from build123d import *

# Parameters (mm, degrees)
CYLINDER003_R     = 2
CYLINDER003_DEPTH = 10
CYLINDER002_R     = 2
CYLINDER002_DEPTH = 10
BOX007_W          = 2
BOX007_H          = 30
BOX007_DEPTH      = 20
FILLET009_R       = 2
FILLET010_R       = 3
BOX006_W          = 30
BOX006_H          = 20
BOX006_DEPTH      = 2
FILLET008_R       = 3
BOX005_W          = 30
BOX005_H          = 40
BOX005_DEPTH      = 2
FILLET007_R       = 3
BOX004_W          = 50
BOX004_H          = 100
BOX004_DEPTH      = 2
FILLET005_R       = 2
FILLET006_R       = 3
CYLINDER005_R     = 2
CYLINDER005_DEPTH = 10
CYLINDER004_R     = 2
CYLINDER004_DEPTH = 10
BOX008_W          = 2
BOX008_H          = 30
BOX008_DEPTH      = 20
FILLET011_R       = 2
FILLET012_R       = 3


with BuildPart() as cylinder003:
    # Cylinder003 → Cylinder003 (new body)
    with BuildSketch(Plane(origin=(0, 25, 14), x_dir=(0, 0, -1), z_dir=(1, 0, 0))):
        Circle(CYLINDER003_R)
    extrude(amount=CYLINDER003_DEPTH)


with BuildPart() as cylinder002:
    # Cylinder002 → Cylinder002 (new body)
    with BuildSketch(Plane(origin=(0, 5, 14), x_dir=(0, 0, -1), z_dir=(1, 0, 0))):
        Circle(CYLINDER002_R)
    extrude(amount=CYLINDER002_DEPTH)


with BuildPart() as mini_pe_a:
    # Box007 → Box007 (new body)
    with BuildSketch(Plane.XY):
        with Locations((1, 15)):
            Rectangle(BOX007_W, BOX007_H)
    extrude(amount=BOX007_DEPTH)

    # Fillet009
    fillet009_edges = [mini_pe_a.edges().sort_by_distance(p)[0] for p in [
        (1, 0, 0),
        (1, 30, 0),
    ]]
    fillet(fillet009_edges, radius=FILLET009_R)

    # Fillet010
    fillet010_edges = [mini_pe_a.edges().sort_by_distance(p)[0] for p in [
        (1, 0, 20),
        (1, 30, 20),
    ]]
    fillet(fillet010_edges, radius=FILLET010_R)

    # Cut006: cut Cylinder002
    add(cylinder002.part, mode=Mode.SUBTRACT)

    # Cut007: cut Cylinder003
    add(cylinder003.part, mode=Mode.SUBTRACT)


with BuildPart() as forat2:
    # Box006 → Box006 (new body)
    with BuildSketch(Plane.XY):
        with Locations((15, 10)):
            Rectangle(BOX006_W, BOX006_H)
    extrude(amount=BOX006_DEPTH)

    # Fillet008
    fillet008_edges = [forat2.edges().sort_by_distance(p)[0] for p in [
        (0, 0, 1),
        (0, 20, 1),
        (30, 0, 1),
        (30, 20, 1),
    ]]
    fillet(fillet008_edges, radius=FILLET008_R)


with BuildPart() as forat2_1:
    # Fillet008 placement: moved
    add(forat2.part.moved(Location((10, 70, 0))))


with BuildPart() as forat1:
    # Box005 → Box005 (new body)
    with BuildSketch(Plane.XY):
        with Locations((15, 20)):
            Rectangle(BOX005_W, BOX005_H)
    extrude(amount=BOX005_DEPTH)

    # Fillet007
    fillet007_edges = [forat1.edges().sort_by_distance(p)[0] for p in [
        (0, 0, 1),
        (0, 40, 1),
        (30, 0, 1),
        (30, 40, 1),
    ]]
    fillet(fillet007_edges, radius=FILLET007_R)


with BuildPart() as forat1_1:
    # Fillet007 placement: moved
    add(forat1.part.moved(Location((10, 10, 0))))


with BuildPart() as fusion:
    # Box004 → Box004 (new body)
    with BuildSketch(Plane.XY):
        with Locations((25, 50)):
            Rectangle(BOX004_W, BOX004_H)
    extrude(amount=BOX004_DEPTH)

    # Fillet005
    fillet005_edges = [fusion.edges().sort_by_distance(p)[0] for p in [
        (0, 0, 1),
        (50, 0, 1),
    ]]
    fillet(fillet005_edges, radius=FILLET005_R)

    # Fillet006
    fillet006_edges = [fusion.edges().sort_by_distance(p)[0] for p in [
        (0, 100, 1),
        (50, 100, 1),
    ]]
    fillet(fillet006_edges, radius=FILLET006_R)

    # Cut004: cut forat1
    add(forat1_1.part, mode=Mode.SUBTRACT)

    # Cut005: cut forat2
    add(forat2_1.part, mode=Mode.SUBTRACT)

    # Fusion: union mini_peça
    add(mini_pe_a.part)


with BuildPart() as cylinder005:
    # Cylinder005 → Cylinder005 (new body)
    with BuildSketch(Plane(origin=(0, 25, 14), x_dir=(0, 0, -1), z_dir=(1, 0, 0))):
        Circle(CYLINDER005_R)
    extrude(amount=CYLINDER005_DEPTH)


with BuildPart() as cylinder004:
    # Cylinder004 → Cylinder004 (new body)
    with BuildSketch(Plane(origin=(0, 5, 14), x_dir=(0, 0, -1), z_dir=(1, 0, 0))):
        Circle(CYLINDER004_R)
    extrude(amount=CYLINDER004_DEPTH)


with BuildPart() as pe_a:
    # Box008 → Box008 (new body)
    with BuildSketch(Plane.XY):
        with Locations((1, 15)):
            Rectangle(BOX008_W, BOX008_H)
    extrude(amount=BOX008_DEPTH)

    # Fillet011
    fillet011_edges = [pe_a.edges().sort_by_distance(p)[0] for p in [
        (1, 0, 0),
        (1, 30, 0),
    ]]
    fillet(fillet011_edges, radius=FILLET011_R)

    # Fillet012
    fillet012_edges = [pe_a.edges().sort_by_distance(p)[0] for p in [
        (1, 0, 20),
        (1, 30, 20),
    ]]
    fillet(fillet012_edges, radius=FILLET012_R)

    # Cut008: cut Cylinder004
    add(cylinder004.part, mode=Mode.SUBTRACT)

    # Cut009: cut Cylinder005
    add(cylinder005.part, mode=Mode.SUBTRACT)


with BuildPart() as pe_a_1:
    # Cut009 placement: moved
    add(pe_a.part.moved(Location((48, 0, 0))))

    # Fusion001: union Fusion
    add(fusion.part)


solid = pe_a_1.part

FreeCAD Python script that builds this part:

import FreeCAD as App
import Part
import Sketcher


def edges_at(feature, points):
    """Names of the edges that pass closest to the given points."""
    edges = feature.Shape.Edges
    near = lambda p: min(range(len(edges)), key=lambda i: edges[i].distToShape(Part.Vertex(*p))[0])
    return sorted({f"Edge{near(p) + 1}" for p in points})

doc = App.newDocument("Part")
params = doc.addObject("Spreadsheet::Sheet", "Params")
for row, (alias, value) in enumerate([
    ("sketch1_diameter", "4 mm"),
    ("pad1_length", "10 mm"),
    ("sketch2_diameter", "4 mm"),
    ("pad2_length", "10 mm"),
    ("sketch3_width", "2 mm"),
    ("sketch3_height", "30 mm"),
    ("pad3_length", "20 mm"),
    ("fillet_radius", "2 mm"),
    ("fillet2_radius", "3 mm"),
    ("sketch4_width", "30 mm"),
    ("sketch4_height", "20 mm"),
    ("pad4_length", "2 mm"),
    ("fillet3_radius", "3 mm"),
    ("sketch5_width", "30 mm"),
    ("sketch5_height", "40 mm"),
    ("pad5_length", "2 mm"),
    ("fillet4_radius", "3 mm"),
    ("sketch6_width", "50 mm"),
    ("sketch6_height", "100 mm"),
    ("pad6_length", "2 mm"),
    ("fillet5_radius", "2 mm"),
    ("fillet6_radius", "3 mm"),
    ("sketch7_diameter", "4 mm"),
    ("pad7_length", "10 mm"),
    ("sketch8_diameter", "4 mm"),
    ("pad8_length", "10 mm"),
    ("sketch9_width", "2 mm"),
    ("sketch9_height", "30 mm"),
    ("pad9_length", "20 mm"),
    ("fillet7_radius", "2 mm"),
    ("fillet8_radius", "3 mm"),
], start=1):
    params.set(f"A{row}", alias)
    params.set(f"B{row}", "=" + value)
    params.setAlias(f"B{row}", alias)

body = doc.addObject("PartDesign::Body", "Body")

# Sketch on YZ plane
sketch1 = body.newObject("Sketcher::SketchObject", "Sketch")
sketch1.AttachmentSupport = (doc.getObject("YZ_Plane"), [""])
sketch1.MapMode = "FlatFace"
sketch1.addGeometry(Part.Circle(App.Vector(25, 14, 0), App.Vector(0, 0, 1), 2), False)
sketch1.addConstraint(Sketcher.Constraint("Diameter", 0, 4.0))
sketch1.addConstraint(Sketcher.Constraint("DistanceX", -1, 1, 0, 3, 25.0))
sketch1.addConstraint(Sketcher.Constraint("DistanceY", -1, 1, 0, 3, 14.0))
sketch1.setExpression("Constraints[0]", "Params.sketch1_diameter")
pad1 = body.newObject("PartDesign::Pad", "Pad")
pad1.Profile = sketch1
pad1.setExpression("Length", "Params.pad1_length")
body2 = doc.addObject("PartDesign::Body", "Body001")

# Sketch on YZ plane
sketch2 = body2.newObject("Sketcher::SketchObject", "Sketch001")
sketch2.AttachmentSupport = (doc.getObject("YZ_Plane001"), [""])
sketch2.MapMode = "FlatFace"
sketch2.addGeometry(Part.Circle(App.Vector(5, 14, 0), App.Vector(0, 0, 1), 2), False)
sketch2.addConstraint(Sketcher.Constraint("Diameter", 0, 4.0))
sketch2.addConstraint(Sketcher.Constraint("DistanceX", -1, 1, 0, 3, 5.0))
sketch2.addConstraint(Sketcher.Constraint("DistanceY", -1, 1, 0, 3, 14.0))
sketch2.setExpression("Constraints[0]", "Params.sketch2_diameter")
pad2 = body2.newObject("PartDesign::Pad", "Pad001")
pad2.Profile = sketch2
pad2.setExpression("Length", "Params.pad2_length")
body3 = doc.addObject("PartDesign::Body", "Body002")

# Sketch on XY plane
sketch3 = body3.newObject("Sketcher::SketchObject", "Sketch002")
sketch3.AttachmentSupport = (doc.getObject("XY_Plane002"), [""])
sketch3.MapMode = "FlatFace"
sketch3.addGeometry(Part.LineSegment(App.Vector(0, 30, 0), App.Vector(0, 0, 0)), False)
sketch3.addGeometry(Part.LineSegment(App.Vector(0, 0, 0), App.Vector(2, 0, 0)), False)
sketch3.addGeometry(Part.LineSegment(App.Vector(2, 0, 0), App.Vector(2, 30, 0)), False)
sketch3.addGeometry(Part.LineSegment(App.Vector(2, 30, 0), App.Vector(0, 30, 0)), False)
sketch3.addConstraint(Sketcher.Constraint("Coincident", 0, 2, 1, 1))
sketch3.addConstraint(Sketcher.Constraint("Coincident", 1, 2, 2, 1))
sketch3.addConstraint(Sketcher.Constraint("Coincident", 2, 2, 3, 1))
sketch3.addConstraint(Sketcher.Constraint("Coincident", 3, 2, 0, 1))
sketch3.addConstraint(Sketcher.Constraint("Vertical", 0))
sketch3.addConstraint(Sketcher.Constraint("Horizontal", 1))
sketch3.addConstraint(Sketcher.Constraint("Vertical", 2))
sketch3.addConstraint(Sketcher.Constraint("Horizontal", 3))
sketch3.addConstraint(Sketcher.Constraint("Coincident", 0, 2, -1, 1))
sketch3.addConstraint(Sketcher.Constraint("DistanceX", 1, 1, 1, 2, 2.0))
sketch3.addConstraint(Sketcher.Constraint("DistanceY", 0, 2, 0, 1, 30.0))
sketch3.setExpression("Constraints[9]", "Params.sketch3_width")
sketch3.setExpression("Constraints[10]", "Params.sketch3_height")
pad3 = body3.newObject("PartDesign::Pad", "Pad002")
pad3.Profile = sketch3
pad3.setExpression("Length", "Params.pad3_length")
doc.recompute()

fillet = body3.newObject("PartDesign::Fillet", "Fillet")
fillet.Base = (pad3, edges_at(pad3, [(1, 0, 0), (1, 30, 0)]))
fillet.setExpression("Radius", "Params.fillet_radius")
doc.recompute()

fillet2 = body3.newObject("PartDesign::Fillet", "Fillet001")
fillet2.Base = (fillet, edges_at(fillet, [(1, 0, 20), (1, 30, 20)]))
fillet2.setExpression("Radius", "Params.fillet2_radius")
doc.recompute()

boolean = body3.newObject("PartDesign::Boolean", "Boolean")
boolean.Type = "Cut"
boolean.addObjects([body2])
doc.recompute()

boolean2 = body3.newObject("PartDesign::Boolean", "Boolean001")
boolean2.Type = "Cut"
boolean2.addObjects([body])
body4 = doc.addObject("PartDesign::Body", "Body003")

# Sketch on XY plane
sketch4 = body4.newObject("Sketcher::SketchObject", "Sketch003")
sketch4.AttachmentSupport = (doc.getObject("XY_Plane003"), [""])
sketch4.MapMode = "FlatFace"
sketch4.addGeometry(Part.LineSegment(App.Vector(0, 20, 0), App.Vector(0, 0, 0)), False)
sketch4.addGeometry(Part.LineSegment(App.Vector(0, 0, 0), App.Vector(30, 0, 0)), False)
sketch4.addGeometry(Part.LineSegment(App.Vector(30, 0, 0), App.Vector(30, 20, 0)), False)
sketch4.addGeometry(Part.LineSegment(App.Vector(30, 20, 0), App.Vector(0, 20, 0)), False)
sketch4.addConstraint(Sketcher.Constraint("Coincident", 0, 2, 1, 1))
sketch4.addConstraint(Sketcher.Constraint("Coincident", 1, 2, 2, 1))
sketch4.addConstraint(Sketcher.Constraint("Coincident", 2, 2, 3, 1))
sketch4.addConstraint(Sketcher.Constraint("Coincident", 3, 2, 0, 1))
sketch4.addConstraint(Sketcher.Constraint("Vertical", 0))
sketch4.addConstraint(Sketcher.Constraint("Horizontal", 1))
sketch4.addConstraint(Sketcher.Constraint("Vertical", 2))
sketch4.addConstraint(Sketcher.Constraint("Horizontal", 3))
sketch4.addConstraint(Sketcher.Constraint("Coincident", 0, 2, -1, 1))
sketch4.addConstraint(Sketcher.Constraint("DistanceX", 1, 1, 1, 2, 30.0))
sketch4.addConstraint(Sketcher.Constraint("DistanceY", 0, 2, 0, 1, 20.0))
sketch4.setExpression("Constraints[9]", "Params.sketch4_width")
sketch4.setExpression("Constraints[10]", "Params.sketch4_height")
pad4 = body4.newObject("PartDesign::Pad", "Pad003")
pad4.Profile = sketch4
pad4.setExpression("Length", "Params.pad4_length")
doc.recompute()

fillet3 = body4.newObject("PartDesign::Fillet", "Fillet002")
fillet3.Base = (pad4, edges_at(pad4, [
    (0, 0, 1),
    (0, 20, 1),
    (30, 0, 1),
    (30, 20, 1),
]))
fillet3.setExpression("Radius", "Params.fillet3_radius")
body5 = doc.addObject("PartDesign::Body", "Body004")
doc.recompute()

body4.Placement = App.Placement(App.Vector(10, 70, 0), App.Rotation(App.Vector(0, 0, 1), 0))
boolean3 = body5.newObject("PartDesign::Boolean", "Boolean002")
boolean3.Type = "Fuse"
boolean3.addObjects([body4])
body6 = doc.addObject("PartDesign::Body", "Body005")

# Sketch on XY plane
sketch5 = body6.newObject("Sketcher::SketchObject", "Sketch004")
sketch5.AttachmentSupport = (doc.getObject("XY_Plane005"), [""])
sketch5.MapMode = "FlatFace"
sketch5.addGeometry(Part.LineSegment(App.Vector(0, 40, 0), App.Vector(0, 0, 0)), False)
sketch5.addGeometry(Part.LineSegment(App.Vector(0, 0, 0), App.Vector(30, 0, 0)), False)
sketch5.addGeometry(Part.LineSegment(App.Vector(30, 0, 0), App.Vector(30, 40, 0)), False)
sketch5.addGeometry(Part.LineSegment(App.Vector(30, 40, 0), App.Vector(0, 40, 0)), False)
sketch5.addConstraint(Sketcher.Constraint("Coincident", 0, 2, 1, 1))
sketch5.addConstraint(Sketcher.Constraint("Coincident", 1, 2, 2, 1))
sketch5.addConstraint(Sketcher.Constraint("Coincident", 2, 2, 3, 1))
sketch5.addConstraint(Sketcher.Constraint("Coincident", 3, 2, 0, 1))
sketch5.addConstraint(Sketcher.Constraint("Vertical", 0))
sketch5.addConstraint(Sketcher.Constraint("Horizontal", 1))
sketch5.addConstraint(Sketcher.Constraint("Vertical", 2))
sketch5.addConstraint(Sketcher.Constraint("Horizontal", 3))
sketch5.addConstraint(Sketcher.Constraint("Coincident", 0, 2, -1, 1))
sketch5.addConstraint(Sketcher.Constraint("DistanceX", 1, 1, 1, 2, 30.0))
sketch5.addConstraint(Sketcher.Constraint("DistanceY", 0, 2, 0, 1, 40.0))
sketch5.setExpression("Constraints[9]", "Params.sketch5_width")
sketch5.setExpression("Constraints[10]", "Params.sketch5_height")
pad5 = body6.newObject("PartDesign::Pad", "Pad004")
pad5.Profile = sketch5
pad5.setExpression("Length", "Params.pad5_length")
doc.recompute()

fillet4 = body6.newObject("PartDesign::Fillet", "Fillet003")
fillet4.Base = (pad5, edges_at(pad5, [
    (0, 0, 1),
    (0, 40, 1),
    (30, 0, 1),
    (30, 40, 1),
]))
fillet4.setExpression("Radius", "Params.fillet4_radius")
body7 = doc.addObject("PartDesign::Body", "Body006")
doc.recompute()

body6.Placement = App.Placement(App.Vector(10, 10, 0), App.Rotation(App.Vector(0, 0, 1), 0))
boolean4 = body7.newObject("PartDesign::Boolean", "Boolean003")
boolean4.Type = "Fuse"
boolean4.addObjects([body6])
body8 = doc.addObject("PartDesign::Body", "Body007")

# Sketch on XY plane
sketch6 = body8.newObject("Sketcher::SketchObject", "Sketch005")
sketch6.AttachmentSupport = (doc.getObject("XY_Plane007"), [""])
sketch6.MapMode = "FlatFace"
sketch6.addGeometry(Part.LineSegment(App.Vector(0, 100, 0), App.Vector(0, 0, 0)), False)
sketch6.addGeometry(Part.LineSegment(App.Vector(0, 0, 0), App.Vector(50, 0, 0)), False)
sketch6.addGeometry(Part.LineSegment(App.Vector(50, 0, 0), App.Vector(50, 100, 0)), False)
sketch6.addGeometry(Part.LineSegment(App.Vector(50, 100, 0), App.Vector(0, 100, 0)), False)
sketch6.addConstraint(Sketcher.Constraint("Coincident", 0, 2, 1, 1))
sketch6.addConstraint(Sketcher.Constraint("Coincident", 1, 2, 2, 1))
sketch6.addConstraint(Sketcher.Constraint("Coincident", 2, 2, 3, 1))
sketch6.addConstraint(Sketcher.Constraint("Coincident", 3, 2, 0, 1))
sketch6.addConstraint(Sketcher.Constraint("Vertical", 0))
sketch6.addConstraint(Sketcher.Constraint("Horizontal", 1))
sketch6.addConstraint(Sketcher.Constraint("Vertical", 2))
sketch6.addConstraint(Sketcher.Constraint("Horizontal", 3))
sketch6.addConstraint(Sketcher.Constraint("Coincident", 0, 2, -1, 1))
sketch6.addConstraint(Sketcher.Constraint("DistanceX", 1, 1, 1, 2, 50.0))
sketch6.addConstraint(Sketcher.Constraint("DistanceY", 0, 2, 0, 1, 100.0))
sketch6.setExpression("Constraints[9]", "Params.sketch6_width")
sketch6.setExpression("Constraints[10]", "Params.sketch6_height")
pad6 = body8.newObject("PartDesign::Pad", "Pad005")
pad6.Profile = sketch6
pad6.setExpression("Length", "Params.pad6_length")
doc.recompute()

fillet5 = body8.newObject("PartDesign::Fillet", "Fillet004")
fillet5.Base = (pad6, edges_at(pad6, [(0, 0, 1), (50, 0, 1)]))
fillet5.setExpression("Radius", "Params.fillet5_radius")
doc.recompute()

fillet6 = body8.newObject("PartDesign::Fillet", "Fillet005")
fillet6.Base = (fillet5, edges_at(fillet5, [(0, 100, 1), (50, 100, 1)]))
fillet6.setExpression("Radius", "Params.fillet6_radius")
doc.recompute()

boolean5 = body8.newObject("PartDesign::Boolean", "Boolean004")
boolean5.Type = "Cut"
boolean5.addObjects([body7])
doc.recompute()

boolean6 = body8.newObject("PartDesign::Boolean", "Boolean005")
boolean6.Type = "Cut"
boolean6.addObjects([body5])
doc.recompute()

boolean7 = body8.newObject("PartDesign::Boolean", "Boolean006")
boolean7.Type = "Fuse"
boolean7.addObjects([body3])
body9 = doc.addObject("PartDesign::Body", "Body008")

# Sketch on YZ plane
sketch7 = body9.newObject("Sketcher::SketchObject", "Sketch006")
sketch7.AttachmentSupport = (doc.getObject("YZ_Plane008"), [""])
sketch7.MapMode = "FlatFace"
sketch7.addGeometry(Part.Circle(App.Vector(25, 14, 0), App.Vector(0, 0, 1), 2), False)
sketch7.addConstraint(Sketcher.Constraint("Diameter", 0, 4.0))
sketch7.addConstraint(Sketcher.Constraint("DistanceX", -1, 1, 0, 3, 25.0))
sketch7.addConstraint(Sketcher.Constraint("DistanceY", -1, 1, 0, 3, 14.0))
sketch7.setExpression("Constraints[0]", "Params.sketch7_diameter")
pad7 = body9.newObject("PartDesign::Pad", "Pad006")
pad7.Profile = sketch7
pad7.setExpression("Length", "Params.pad7_length")
body10 = doc.addObject("PartDesign::Body", "Body009")

# Sketch on YZ plane
sketch8 = body10.newObject("Sketcher::SketchObject", "Sketch007")
sketch8.AttachmentSupport = (doc.getObject("YZ_Plane009"), [""])
sketch8.MapMode = "FlatFace"
sketch8.addGeometry(Part.Circle(App.Vector(5, 14, 0), App.Vector(0, 0, 1), 2), False)
sketch8.addConstraint(Sketcher.Constraint("Diameter", 0, 4.0))
sketch8.addConstraint(Sketcher.Constraint("DistanceX", -1, 1, 0, 3, 5.0))
sketch8.addConstraint(Sketcher.Constraint("DistanceY", -1, 1, 0, 3, 14.0))
sketch8.setExpression("Constraints[0]", "Params.sketch8_diameter")
pad8 = body10.newObject("PartDesign::Pad", "Pad007")
pad8.Profile = sketch8
pad8.setExpression("Length", "Params.pad8_length")
body11 = doc.addObject("PartDesign::Body", "Body010")

# Sketch on XY plane
sketch9 = body11.newObject("Sketcher::SketchObject", "Sketch008")
sketch9.AttachmentSupport = (doc.getObject("XY_Plane010"), [""])
sketch9.MapMode = "FlatFace"
sketch9.addGeometry(Part.LineSegment(App.Vector(0, 30, 0), App.Vector(0, 0, 0)), False)
sketch9.addGeometry(Part.LineSegment(App.Vector(0, 0, 0), App.Vector(2, 0, 0)), False)
sketch9.addGeometry(Part.LineSegment(App.Vector(2, 0, 0), App.Vector(2, 30, 0)), False)
sketch9.addGeometry(Part.LineSegment(App.Vector(2, 30, 0), App.Vector(0, 30, 0)), False)
sketch9.addConstraint(Sketcher.Constraint("Coincident", 0, 2, 1, 1))
sketch9.addConstraint(Sketcher.Constraint("Coincident", 1, 2, 2, 1))
sketch9.addConstraint(Sketcher.Constraint("Coincident", 2, 2, 3, 1))
sketch9.addConstraint(Sketcher.Constraint("Coincident", 3, 2, 0, 1))
sketch9.addConstraint(Sketcher.Constraint("Vertical", 0))
sketch9.addConstraint(Sketcher.Constraint("Horizontal", 1))
sketch9.addConstraint(Sketcher.Constraint("Vertical", 2))
sketch9.addConstraint(Sketcher.Constraint("Horizontal", 3))
sketch9.addConstraint(Sketcher.Constraint("Coincident", 0, 2, -1, 1))
sketch9.addConstraint(Sketcher.Constraint("DistanceX", 1, 1, 1, 2, 2.0))
sketch9.addConstraint(Sketcher.Constraint("DistanceY", 0, 2, 0, 1, 30.0))
sketch9.setExpression("Constraints[9]", "Params.sketch9_width")
sketch9.setExpression("Constraints[10]", "Params.sketch9_height")
pad9 = body11.newObject("PartDesign::Pad", "Pad008")
pad9.Profile = sketch9
pad9.setExpression("Length", "Params.pad9_length")
doc.recompute()

fillet7 = body11.newObject("PartDesign::Fillet", "Fillet006")
fillet7.Base = (pad9, edges_at(pad9, [(1, 0, 0), (1, 30, 0)]))
fillet7.setExpression("Radius", "Params.fillet7_radius")
doc.recompute()

fillet8 = body11.newObject("PartDesign::Fillet", "Fillet007")
fillet8.Base = (fillet7, edges_at(fillet7, [(1, 0, 20), (1, 30, 20)]))
fillet8.setExpression("Radius", "Params.fillet8_radius")
doc.recompute()

boolean8 = body11.newObject("PartDesign::Boolean", "Boolean007")
boolean8.Type = "Cut"
boolean8.addObjects([body10])
doc.recompute()

boolean9 = body11.newObject("PartDesign::Boolean", "Boolean008")
boolean9.Type = "Cut"
boolean9.addObjects([body9])
body12 = doc.addObject("PartDesign::Body", "Body011")
doc.recompute()

body11.Placement = App.Placement(App.Vector(48, 0, 0), App.Rotation(App.Vector(0, 0, 1), 0))
boolean10 = body12.newObject("PartDesign::Boolean", "Boolean009")
boolean10.Type = "Fuse"
boolean10.addObjects([body11])
doc.recompute()

boolean11 = body12.newObject("PartDesign::Boolean", "Boolean010")
boolean11.Type = "Fuse"
boolean11.addObjects([body8])

doc.recompute()
